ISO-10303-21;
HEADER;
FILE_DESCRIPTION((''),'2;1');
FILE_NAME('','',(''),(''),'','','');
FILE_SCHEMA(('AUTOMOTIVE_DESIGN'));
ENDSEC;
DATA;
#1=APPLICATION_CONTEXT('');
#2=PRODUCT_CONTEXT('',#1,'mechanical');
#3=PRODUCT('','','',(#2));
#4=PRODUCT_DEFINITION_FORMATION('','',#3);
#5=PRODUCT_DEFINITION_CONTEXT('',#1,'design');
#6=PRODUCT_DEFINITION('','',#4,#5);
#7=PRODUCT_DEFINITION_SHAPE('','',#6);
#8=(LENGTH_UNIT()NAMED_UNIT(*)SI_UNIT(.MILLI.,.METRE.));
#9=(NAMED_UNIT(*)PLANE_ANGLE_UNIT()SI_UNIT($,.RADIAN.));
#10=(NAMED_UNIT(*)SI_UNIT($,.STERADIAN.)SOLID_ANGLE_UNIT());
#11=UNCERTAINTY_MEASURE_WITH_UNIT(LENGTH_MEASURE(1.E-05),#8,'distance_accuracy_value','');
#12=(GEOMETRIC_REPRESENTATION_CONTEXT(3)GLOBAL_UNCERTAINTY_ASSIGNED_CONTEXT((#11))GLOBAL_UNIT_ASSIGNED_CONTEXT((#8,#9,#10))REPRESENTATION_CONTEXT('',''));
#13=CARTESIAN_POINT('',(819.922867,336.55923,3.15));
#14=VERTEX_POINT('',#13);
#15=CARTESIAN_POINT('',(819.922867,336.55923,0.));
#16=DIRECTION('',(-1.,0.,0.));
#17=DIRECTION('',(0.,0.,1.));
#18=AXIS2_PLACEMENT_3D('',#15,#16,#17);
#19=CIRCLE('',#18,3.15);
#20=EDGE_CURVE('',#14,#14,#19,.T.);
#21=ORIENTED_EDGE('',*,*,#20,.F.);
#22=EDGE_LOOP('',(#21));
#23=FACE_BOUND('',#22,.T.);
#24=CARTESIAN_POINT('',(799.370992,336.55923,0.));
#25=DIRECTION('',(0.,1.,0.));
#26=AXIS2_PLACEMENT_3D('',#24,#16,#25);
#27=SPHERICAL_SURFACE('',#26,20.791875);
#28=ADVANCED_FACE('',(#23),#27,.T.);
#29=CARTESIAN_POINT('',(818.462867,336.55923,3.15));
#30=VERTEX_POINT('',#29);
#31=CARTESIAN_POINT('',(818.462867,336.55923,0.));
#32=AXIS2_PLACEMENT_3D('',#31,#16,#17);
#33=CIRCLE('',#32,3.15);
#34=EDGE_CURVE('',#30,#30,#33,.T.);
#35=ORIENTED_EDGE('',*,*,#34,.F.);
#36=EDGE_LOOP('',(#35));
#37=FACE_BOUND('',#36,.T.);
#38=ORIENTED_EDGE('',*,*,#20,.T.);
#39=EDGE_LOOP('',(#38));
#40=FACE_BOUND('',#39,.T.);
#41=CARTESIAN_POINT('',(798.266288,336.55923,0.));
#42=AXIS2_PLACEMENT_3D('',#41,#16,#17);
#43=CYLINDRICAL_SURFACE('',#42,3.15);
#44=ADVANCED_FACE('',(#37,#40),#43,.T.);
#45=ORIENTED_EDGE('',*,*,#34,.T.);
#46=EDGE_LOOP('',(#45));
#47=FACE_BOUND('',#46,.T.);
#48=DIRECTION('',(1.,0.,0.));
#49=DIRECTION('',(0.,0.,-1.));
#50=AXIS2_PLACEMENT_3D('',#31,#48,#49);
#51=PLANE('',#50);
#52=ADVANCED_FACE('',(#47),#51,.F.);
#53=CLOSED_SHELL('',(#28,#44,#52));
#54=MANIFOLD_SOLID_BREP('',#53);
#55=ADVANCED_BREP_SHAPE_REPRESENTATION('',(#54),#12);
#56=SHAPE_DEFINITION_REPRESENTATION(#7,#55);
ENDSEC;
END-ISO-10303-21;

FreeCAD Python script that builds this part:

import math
import FreeCAD as App
import Part
import Sketcher
from FreeCAD import Vector

doc = App.newDocument("Part")
body = doc.addObject("PartDesign::Body", "Body")

# Sketch on XY plane
sketch1 = doc.addObject("Sketcher::SketchObject", "Sketch")
body.addObject(sketch1)
sketch1.AttachmentSupport = (doc.XY_Plane, [""])
sketch1.MapMode = "FlatFace"
sketch1.addGeometry([
    Part.LineSegment(Vector(818.5, 339.7, 0), Vector(818.5, 336.6, 0)),
    Part.LineSegment(Vector(818.5, 336.6, 0), Vector(820.2, 336.6, 0)),
    Part.ArcOfCircle(Part.Circle(Vector(799.4, 336.6, 0), Vector(0, 0, 1), 20.8), math.radians(0), math.radians(8.71)),
    Part.LineSegment(Vector(819.9, 339.7, 0), Vector(818.5, 339.7, 0)),
], False)
sketch1.addGeometry(Part.LineSegment(Vector(799.4, 336.6, 0), Vector(820.2, 336.6, 0)), True)  # axis
sketch1.addConstraint([
    Sketcher.Constraint("Coincident", 0, 2, 1, 1),
    Sketcher.Constraint("Coincident", 1, 2, 2, 1),
    Sketcher.Constraint("Coincident", 2, 2, 3, 1),
    Sketcher.Constraint("Coincident", 3, 2, 0, 1),
    Sketcher.Constraint("Vertical", 0),
    Sketcher.Constraint("Horizontal", 1),
    Sketcher.Constraint("Horizontal", 3),
    Sketcher.Constraint("Horizontal", 4),
    Sketcher.Constraint("Coincident", 4, 1, 2, 3),
    Sketcher.Constraint("Coincident", 4, 2, 1, 2),
    Sketcher.Constraint("DistanceX", 1, 1, 1, 2, 1.7),
    Sketcher.Constraint("DistanceX", 3, 2, 3, 1, 1.46),
    Sketcher.Constraint("DistanceY", 0, 2, 0, 1, 3.15),
    Sketcher.Constraint("DistanceY", -1, 1, 2, 3, 336.55923),
    Sketcher.Constraint("DistanceX", -1, 1, 2, 3, 799.370992),
])
revolution = doc.addObject("PartDesign::Revolution", "Revolution")
body.addObject(revolution)
revolution.Profile = sketch1
revolution.ReferenceAxis = (sketch1, ["Axis0"])
revolution.Angle = 360

doc.recompute()
